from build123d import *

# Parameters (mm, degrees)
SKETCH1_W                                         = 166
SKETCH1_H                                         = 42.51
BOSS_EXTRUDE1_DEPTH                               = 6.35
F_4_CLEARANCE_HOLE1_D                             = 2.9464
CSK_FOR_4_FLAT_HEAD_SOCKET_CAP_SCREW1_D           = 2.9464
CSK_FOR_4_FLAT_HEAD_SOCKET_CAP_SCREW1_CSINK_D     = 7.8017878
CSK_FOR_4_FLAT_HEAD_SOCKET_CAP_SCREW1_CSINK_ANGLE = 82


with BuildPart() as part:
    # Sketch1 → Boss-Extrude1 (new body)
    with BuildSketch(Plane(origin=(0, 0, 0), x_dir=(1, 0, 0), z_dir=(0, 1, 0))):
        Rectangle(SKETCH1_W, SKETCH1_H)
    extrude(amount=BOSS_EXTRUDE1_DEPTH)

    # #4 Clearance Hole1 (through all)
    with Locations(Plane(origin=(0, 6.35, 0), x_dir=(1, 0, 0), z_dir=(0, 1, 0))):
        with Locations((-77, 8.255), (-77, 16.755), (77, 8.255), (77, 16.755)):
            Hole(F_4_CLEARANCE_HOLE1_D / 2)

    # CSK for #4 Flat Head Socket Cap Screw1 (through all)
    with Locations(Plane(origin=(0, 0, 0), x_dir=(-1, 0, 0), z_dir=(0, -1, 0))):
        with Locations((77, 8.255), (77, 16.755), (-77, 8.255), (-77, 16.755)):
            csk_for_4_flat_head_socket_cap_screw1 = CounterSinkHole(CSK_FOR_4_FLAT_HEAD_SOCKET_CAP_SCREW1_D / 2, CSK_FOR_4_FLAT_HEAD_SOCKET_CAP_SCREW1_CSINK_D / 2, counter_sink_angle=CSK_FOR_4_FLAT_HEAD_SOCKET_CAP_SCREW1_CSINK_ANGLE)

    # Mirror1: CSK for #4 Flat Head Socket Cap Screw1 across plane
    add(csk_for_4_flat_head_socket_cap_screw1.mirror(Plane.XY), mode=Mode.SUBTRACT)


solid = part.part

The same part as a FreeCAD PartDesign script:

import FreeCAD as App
import Part
import Sketcher
Q = App.Units.Quantity

doc = App.newDocument("Part")
params = doc.addObject("Spreadsheet::Sheet", "Params")
for row, (alias, value) in enumerate([
    ("pad1_length", "0.25 in"),
    ("sketch2_diameter", "0.116 in"),
    ("hole_diameter", "0.116 in"),
    ("sketch3_diameter", "0.116 in"),
    ("hole2_diameter", "0.116 in"),
    ("hole2_csink_diameter", "7.801788 mm"),
], start=1):
    params.set(f"A{row}", alias)
    params.set(f"B{row}", "=" + value)
    params.setAlias(f"B{row}", alias)

body = doc.addObject("PartDesign::Body", "Body")

# Sketch on XZ plane
sketch1 = body.newObject("Sketcher::SketchObject", "Sketch")
sketch1.AttachmentSupport = (doc.getObject("XZ_Plane"), [""])
sketch1.MapMode = "FlatFace"
sketch1.addGeometry([
    Part.LineSegment(App.Vector(-83, -21, 0), App.Vector(-83, 21, 0)),
    Part.LineSegment(App.Vector(-83, 21, 0), App.Vector(83, 21, 0)),
    Part.LineSegment(App.Vector(83, 21, 0), App.Vector(83, -21, 0)),
    Part.LineSegment(App.Vector(83, -21, 0), App.Vector(-83, -21, 0)),
], False)
sketch1.addConstraint([
    Sketcher.Constraint("Coincident", 0, 2, 1, 1),
    Sketcher.Constraint("Coincident", 1, 2, 2, 1),
    Sketcher.Constraint("Coincident", 2, 2, 3, 1),
    Sketcher.Constraint("Coincident", 3, 2, 0, 1),
    Sketcher.Constraint("Vertical", 0),
    Sketcher.Constraint("Horizontal", 1),
    Sketcher.Constraint("Vertical", 2),
    Sketcher.Constraint("Horizontal", 3),
    Sketcher.Constraint("Symmetric", 0, 2, 2, 2, -1, 1),
    Sketcher.Constraint("DistanceX", 1, 1, 1, 2, Q("166 mm")),
    Sketcher.Constraint("DistanceY", 0, 1, 0, 2, Q("42.51 mm")),
])
pad1 = body.newObject("PartDesign::Pad", "Pad")
pad1.Profile = sketch1
pad1.setExpression("Length", "Params.pad1_length")
pad1.Reversed = True

# Sketch on XZ plane
sketch2 = body.newObject("Sketcher::SketchObject", "Sketch001")
sketch2.AttachmentSupport = (doc.getObject("XZ_Plane"), [""])
sketch2.MapMode = "FlatFace"
sketch2.AttachmentOffset = App.Placement(App.Vector(0, 0, -0.25 * 25.4), App.Rotation())
sketch2.addGeometry([
    Part.Circle(App.Vector(-77, -8.3, 0), App.Vector(0, 0, 1), 1.5),
    Part.Circle(App.Vector(-77, -16.8, 0), App.Vector(0, 0, 1), 1.5),
    Part.Circle(App.Vector(77, -8.3, 0), App.Vector(0, 0, 1), 1.5),
    Part.Circle(App.Vector(77, -16.8, 0), App.Vector(0, 0, 1), 1.5),
], False)
sketch2.addConstraint([
    Sketcher.Constraint("Equal", 0, 1),
    Sketcher.Constraint("Equal", 1, 2),
    Sketcher.Constraint("Equal", 2, 3),
    Sketcher.Constraint("Symmetric", 0, 3, 2, 3, -2),
    Sketcher.Constraint("Symmetric", 1, 3, 3, 3, -2),
    Sketcher.Constraint("Vertical", 0, 3, 1, 3),
    Sketcher.Constraint("Diameter", 0, Q("0.116 in")),
    Sketcher.Constraint("DistanceY", 0, 3, -1, 1, Q("0.325 in")),
    Sketcher.Constraint("DistanceX", 0, 3, -1, 1, Q("77 mm")),
    Sketcher.Constraint("DistanceY", 1, 3, -1, 1, Q("16.755 mm")),
])
sketch2.setExpression("Constraints[6]", "Params.sketch2_diameter")
doc.recompute()
hole = body.newObject("PartDesign::Hole", "Hole")
hole.Profile = sketch2
hole.ThreadType = "None"
hole.setExpression("Diameter", "Params.hole_diameter")
hole.DepthType = "ThroughAll"
hole.Reversed = True

# Sketch on XZ plane
sketch3 = body.newObject("Sketcher::SketchObject", "Sketch002")
sketch3.AttachmentSupport = (doc.getObject("XZ_Plane"), [""])
sketch3.MapMode = "FlatFace"
sketch3.addGeometry([
    Part.Circle(App.Vector(-77, -8.3, 0), App.Vector(0, 0, 1), 1.5),
    Part.Circle(App.Vector(-77, -16.8, 0), App.Vector(0, 0, 1), 1.5),
    Part.Circle(App.Vector(77, -8.3, 0), App.Vector(0, 0, 1), 1.5),
    Part.Circle(App.Vector(77, -16.8, 0), App.Vector(0, 0, 1), 1.5),
], False)
sketch3.addConstraint([
    Sketcher.Constraint("Equal", 0, 1),
    Sketcher.Constraint("Equal", 1, 2),
    Sketcher.Constraint("Equal", 2, 3),
    Sketcher.Constraint("Symmetric", 0, 3, 2, 3, -2),
    Sketcher.Constraint("Symmetric", 1, 3, 3, 3, -2),
    Sketcher.Constraint("Vertical", 0, 3, 1, 3),
    Sketcher.Constraint("Diameter", 0, Q("0.116 in")),
    Sketcher.Constraint("DistanceY", 0, 3, -1, 1, Q("0.325 in")),
    Sketcher.Constraint("DistanceX", 0, 3, -1, 1, Q("77 mm")),
    Sketcher.Constraint("DistanceY", 1, 3, -1, 1, Q("16.755 mm")),
])
sketch3.setExpression("Constraints[6]", "Params.sketch3_diameter")
doc.recompute()
hole2 = body.newObject("PartDesign::Hole", "Hole001")
hole2.Profile = sketch3
hole2.ThreadType = "None"
hole2.setExpression("Diameter", "Params.hole2_diameter")
hole2.DepthType = "ThroughAll"
hole2.HoleCutType = "Countersink"
hole2.setExpression("HoleCutDiameter", "Params.hole2_csink_diameter")
hole2.HoleCutCountersinkAngle = 82
doc.recompute()

mirrored = body.newObject("PartDesign::Mirrored", "Mirrored")
mirrored.Originals = [hole2]
mirrored.MirrorPlane = (doc.getObject("XY_Plane"), [""])
body.Tip = mirrored

doc.recompute()
